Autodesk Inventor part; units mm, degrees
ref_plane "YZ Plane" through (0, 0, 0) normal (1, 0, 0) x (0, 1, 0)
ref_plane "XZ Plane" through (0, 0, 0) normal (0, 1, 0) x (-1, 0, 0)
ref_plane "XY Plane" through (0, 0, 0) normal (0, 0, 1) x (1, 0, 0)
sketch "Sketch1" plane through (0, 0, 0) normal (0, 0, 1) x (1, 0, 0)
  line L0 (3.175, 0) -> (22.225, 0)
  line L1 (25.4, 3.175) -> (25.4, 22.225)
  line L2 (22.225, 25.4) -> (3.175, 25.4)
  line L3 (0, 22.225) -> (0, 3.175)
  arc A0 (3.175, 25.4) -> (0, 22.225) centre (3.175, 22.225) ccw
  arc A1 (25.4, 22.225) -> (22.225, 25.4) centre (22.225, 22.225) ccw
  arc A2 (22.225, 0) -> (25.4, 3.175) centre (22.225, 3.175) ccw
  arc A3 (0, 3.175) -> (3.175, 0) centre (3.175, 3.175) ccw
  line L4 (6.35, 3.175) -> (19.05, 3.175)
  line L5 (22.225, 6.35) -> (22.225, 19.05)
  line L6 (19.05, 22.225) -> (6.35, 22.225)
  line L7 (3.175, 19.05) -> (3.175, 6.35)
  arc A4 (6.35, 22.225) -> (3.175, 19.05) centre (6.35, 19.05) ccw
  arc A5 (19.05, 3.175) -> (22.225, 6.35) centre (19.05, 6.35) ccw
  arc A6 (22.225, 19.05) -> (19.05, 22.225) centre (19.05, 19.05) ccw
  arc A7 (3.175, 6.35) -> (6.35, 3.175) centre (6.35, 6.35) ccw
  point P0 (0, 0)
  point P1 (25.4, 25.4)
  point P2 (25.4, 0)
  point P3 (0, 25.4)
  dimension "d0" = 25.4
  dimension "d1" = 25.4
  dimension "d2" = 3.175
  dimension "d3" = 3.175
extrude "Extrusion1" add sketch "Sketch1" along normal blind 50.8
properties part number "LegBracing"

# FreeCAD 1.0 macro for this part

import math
import FreeCAD as App
import Part
import Sketcher
Q = App.Units.Quantity

doc = App.newDocument("Part")
body = doc.addObject("PartDesign::Body", "Body")

# Sketch on XY plane
sketch1 = body.newObject("Sketcher::SketchObject", "Sketch")
sketch1.AttachmentSupport = (doc.getObject("XY_Plane"), [""])
sketch1.MapMode = "FlatFace"
sketch1.addGeometry(Part.ArcOfCircle(Part.Circle(App.Vector(3.2, 3.2, 0), App.Vector(0, 0, 1), 3.2), math.radians(180), math.radians(270)), False)
sketch1.addGeometry(Part.LineSegment(App.Vector(3.2, 0, 0), App.Vector(22.2, 0, 0)), False)
sketch1.addGeometry(Part.ArcOfCircle(Part.Circle(App.Vector(22.2, 3.2, 0), App.Vector(0, 0, 1), 3.2), math.radians(-90), math.radians(0)), False)
sketch1.addGeometry(Part.LineSegment(App.Vector(25.4, 3.2, 0), App.Vector(25.4, 22.2, 0)), False)
sketch1.addGeometry(Part.ArcOfCircle(Part.Circle(App.Vector(22.2, 22.2, 0), App.Vector(0, 0, 1), 3.2), math.radians(0), math.radians(90)), False)
sketch1.addGeometry(Part.LineSegment(App.Vector(22.2, 25.4, 0), App.Vector(3.2, 25.4, 0)), False)
sketch1.addGeometry(Part.ArcOfCircle(Part.Circle(App.Vector(3.2, 22.2, 0), App.Vector(0, 0, 1), 3.2), math.radians(90), math.radians(180)), False)
sketch1.addGeometry(Part.LineSegment(App.Vector(0, 22.2, 0), App.Vector(0, 3.2, 0)), False)
sketch1.addGeometry(Part.LineSegment(App.Vector(19.1, 3.2, 0), App.Vector(6.3, 3.2, 0)), False)
sketch1.addGeometry(Part.ArcOfCircle(Part.Circle(App.Vector(6.3, 6.3, 0), App.Vector(0, 0, 1), 3.2), math.radians(180), math.radians(270)), False)
sketch1.addGeometry(Part.LineSegment(App.Vector(3.2, 6.3, 0), App.Vector(3.2, 19.1, 0)), False)
sketch1.addGeometry(Part.ArcOfCircle(Part.Circle(App.Vector(6.3, 19.1, 0), App.Vector(0, 0, 1), 3.2), math.radians(90), math.radians(180)), False)
sketch1.addGeometry(Part.LineSegment(App.Vector(6.3, 22.2, 0), App.Vector(19.1, 22.2, 0)), False)
sketch1.addGeometry(Part.ArcOfCircle(Part.Circle(App.Vector(19.1, 19.1, 0), App.Vector(0, 0, 1), 3.2), math.radians(0), math.radians(90)), False)
sketch1.addGeometry(Part.LineSegment(App.Vector(22.2, 19.1, 0), App.Vector(22.2, 6.3, 0)), False)
sketch1.addGeometry(Part.ArcOfCircle(Part.Circle(App.Vector(19.1, 6.3, 0), App.Vector(0, 0, 1), 3.2), math.radians(-90), math.radians(0)), False)
sketch1.addConstraint(Sketcher.Constraint("Tangent", 0, 2, 1, 1))
sketch1.addConstraint(Sketcher.Constraint("Tangent", 1, 2, 2, 1))
sketch1.addConstraint(Sketcher.Constraint("Tangent", 2, 2, 3, 1))
sketch1.addConstraint(Sketcher.Constraint("Tangent", 3, 2, 4, 1))
sketch1.addConstraint(Sketcher.Constraint("Tangent", 4, 2, 5, 1))
sketch1.addConstraint(Sketcher.Constraint("Tangent", 5, 2, 6, 1))
sketch1.addConstraint(Sketcher.Constraint("Tangent", 6, 2, 7, 1))
sketch1.addConstraint(Sketcher.Constraint("Tangent", 7, 2, 0, 1))
sketch1.addConstraint(Sketcher.Constraint("Tangent", 8, 2, 9, 2))
sketch1.addConstraint(Sketcher.Constraint("Tangent", 9, 1, 10, 1))
sketch1.addConstraint(Sketcher.Constraint("Tangent", 10, 2, 11, 2))
sketch1.addConstraint(Sketcher.Constraint("Tangent", 11, 1, 12, 1))
sketch1.addConstraint(Sketcher.Constraint("Tangent", 12, 2, 13, 2))
sketch1.addConstraint(Sketcher.Constraint("Tangent", 13, 1, 14, 1))
sketch1.addConstraint(Sketcher.Constraint("Tangent", 14, 2, 15, 2))
sketch1.addConstraint(Sketcher.Constraint("Tangent", 15, 1, 8, 1))
sketch1.addConstraint(Sketcher.Constraint("Horizontal", 1))
sketch1.addConstraint(Sketcher.Constraint("Vertical", 3))
sketch1.addConstraint(Sketcher.Constraint("Horizontal", 5))
sketch1.addConstraint(Sketcher.Constraint("Vertical", 7))
sketch1.addConstraint(Sketcher.Constraint("Horizontal", 8))
sketch1.addConstraint(Sketcher.Constraint("Vertical", 10))
sketch1.addConstraint(Sketcher.Constraint("Horizontal", 12))
sketch1.addConstraint(Sketcher.Constraint("Vertical", 14))
sketch1.addConstraint(Sketcher.Constraint("Equal", 0, 2))
sketch1.addConstraint(Sketcher.Constraint("Equal", 2, 4))
sketch1.addConstraint(Sketcher.Constraint("Equal", 4, 6))
sketch1.addConstraint(Sketcher.Constraint("Equal", 6, 9))
sketch1.addConstraint(Sketcher.Constraint("Equal", 9, 11))
sketch1.addConstraint(Sketcher.Constraint("Equal", 11, 13))
sketch1.addConstraint(Sketcher.Constraint("Equal", 13, 15))
sketch1.addConstraint(Sketcher.Constraint("PointOnObject", 0, 2, -1))
sketch1.addConstraint(Sketcher.Constraint("PointOnObject", 6, 2, -2))
sketch1.addConstraint(Sketcher.Constraint("Horizontal", 7, 2, 8, 2))
sketch1.addConstraint(Sketcher.Constraint("Horizontal", 6, 2, 11, 1))
sketch1.addConstraint(Sketcher.Constraint("Vertical", 5, 2, 9, 1))
sketch1.addConstraint(Sketcher.Constraint("Vertical", 4, 2, 13, 1))
sketch1.addConstraint(Sketcher.Constraint("Equal", 5, 3))
sketch1.addConstraint(Sketcher.Constraint("DistanceX", -1, 1, 2, 2, Q("1 in")))
sketch1.addConstraint(Sketcher.Constraint("Radius", 0, Q("0.125 in")))
pad1 = body.newObject("PartDesign::Pad", "Pad")
pad1.Profile = sketch1
pad1.Length = Q("2 in")

doc.recompute()
